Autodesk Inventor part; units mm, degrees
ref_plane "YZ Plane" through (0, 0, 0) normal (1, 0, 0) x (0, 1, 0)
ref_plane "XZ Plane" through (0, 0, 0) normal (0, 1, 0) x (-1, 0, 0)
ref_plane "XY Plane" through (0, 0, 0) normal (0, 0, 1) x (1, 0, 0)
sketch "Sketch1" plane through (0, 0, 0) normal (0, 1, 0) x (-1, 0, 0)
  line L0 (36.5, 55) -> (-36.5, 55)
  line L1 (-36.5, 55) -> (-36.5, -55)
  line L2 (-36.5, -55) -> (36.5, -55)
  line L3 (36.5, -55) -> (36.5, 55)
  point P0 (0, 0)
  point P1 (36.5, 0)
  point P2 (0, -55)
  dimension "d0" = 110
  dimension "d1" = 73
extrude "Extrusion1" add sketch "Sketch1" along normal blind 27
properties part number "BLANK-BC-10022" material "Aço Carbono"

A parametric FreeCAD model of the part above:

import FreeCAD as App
import Part
import Sketcher

doc = App.newDocument("Part")
body = doc.addObject("PartDesign::Body", "Body")

sketch1 = body.newObject("Sketcher::SketchObject", "Sketch")
sketch1.AttachmentSupport = (doc.getObject("XZ_Plane"), [""])
sketch1.MapMode = "FlatFace"
sketch1.addGeometry([
    Part.LineSegment(App.Vector(-36, -55, 0), App.Vector(-36, 55, 0)),
    Part.LineSegment(App.Vector(-36, 55, 0), App.Vector(36, 55, 0)),
    Part.LineSegment(App.Vector(36, 55, 0), App.Vector(36, -55, 0)),
    Part.LineSegment(App.Vector(36, -55, 0), App.Vector(-36, -55, 0)),
], False)
sketch1.addConstraint([
    Sketcher.Constraint("Coincident", 0, 2, 1, 1),
    Sketcher.Constraint("Coincident", 1, 2, 2, 1),
    Sketcher.Constraint("Coincident", 2, 2, 3, 1),
    Sketcher.Constraint("Coincident", 3, 2, 0, 1),
    Sketcher.Constraint("Vertical", 0),
    Sketcher.Constraint("Horizontal", 1),
    Sketcher.Constraint("Vertical", 2),
    Sketcher.Constraint("Horizontal", 3),
    Sketcher.Constraint("Symmetric", 0, 2, 2, 2, -1, 1),
    Sketcher.Constraint("DistanceX", 1, 1, 1, 2, 73.0),
    Sketcher.Constraint("DistanceY", 0, 1, 0, 2, 110.0),
])
pad1 = body.newObject("PartDesign::Pad", "Pad")
pad1.Profile = sketch1
pad1.Length = 27
pad1.Reversed = True

doc.recompute()
